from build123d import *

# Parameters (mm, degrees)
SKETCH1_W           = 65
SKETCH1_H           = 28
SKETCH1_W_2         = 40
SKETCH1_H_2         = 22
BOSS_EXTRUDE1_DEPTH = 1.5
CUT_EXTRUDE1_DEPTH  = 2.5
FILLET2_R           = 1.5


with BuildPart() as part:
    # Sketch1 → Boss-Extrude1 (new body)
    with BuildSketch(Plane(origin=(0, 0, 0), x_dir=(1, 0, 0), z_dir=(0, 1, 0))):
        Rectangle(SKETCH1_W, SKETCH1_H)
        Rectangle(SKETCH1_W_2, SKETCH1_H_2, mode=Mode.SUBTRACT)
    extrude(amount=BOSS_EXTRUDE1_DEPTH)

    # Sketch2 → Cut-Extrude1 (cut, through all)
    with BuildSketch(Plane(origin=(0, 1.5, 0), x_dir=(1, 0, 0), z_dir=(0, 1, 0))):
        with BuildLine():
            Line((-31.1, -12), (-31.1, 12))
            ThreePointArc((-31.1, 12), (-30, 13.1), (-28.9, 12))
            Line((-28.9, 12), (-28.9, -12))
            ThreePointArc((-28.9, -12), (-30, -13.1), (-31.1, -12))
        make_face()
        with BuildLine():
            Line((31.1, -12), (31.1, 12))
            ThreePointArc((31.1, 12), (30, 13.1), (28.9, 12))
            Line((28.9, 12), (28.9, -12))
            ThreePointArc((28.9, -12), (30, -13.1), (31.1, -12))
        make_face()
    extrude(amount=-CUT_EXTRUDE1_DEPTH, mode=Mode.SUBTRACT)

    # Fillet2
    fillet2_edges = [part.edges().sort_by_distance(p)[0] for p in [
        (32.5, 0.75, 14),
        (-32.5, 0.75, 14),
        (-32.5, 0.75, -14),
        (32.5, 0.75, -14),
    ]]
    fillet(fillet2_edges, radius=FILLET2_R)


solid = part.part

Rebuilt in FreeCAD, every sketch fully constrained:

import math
import FreeCAD as App
import Part
import Sketcher

V = App.Vector


def edges_at(feature, points):
    """Names of the edges that pass closest to the given points."""
    edges = feature.Shape.Edges
    near = lambda p: min(range(len(edges)), key=lambda i: edges[i].distToShape(Part.Vertex(*p))[0])
    return sorted({f"Edge{near(p) + 1}" for p in points})


def add_polygon(sketch, points):
    """Adds a closed chain of lines whose ends are joined by coincident constraints."""
    first, n = sketch.GeometryCount, len(points)
    for a, b in zip(points, points[1:] + points[:1]):
        sketch.addGeometry(Part.LineSegment(App.Vector(*a, 0), App.Vector(*b, 0)), False)
    for i in range(n):
        sketch.addConstraint(Sketcher.Constraint("Coincident", first + i, 2, first + (i + 1) % n, 1))

doc = App.newDocument("Part")
body = doc.addObject("PartDesign::Body", "Body")

sketch1 = body.newObject("Sketcher::SketchObject", "Sketch")
sketch1.AttachmentSupport = (doc.getObject("XZ_Plane"), [""])
sketch1.MapMode = "FlatFace"
add_polygon(sketch1, [(-32.5, -14), (-32.5, 14), (32.5, 14), (32.5, -14)])
add_polygon(sketch1, [(20, 11), (-20, 11), (-20, -11), (20, -11)])
sketch1.addConstraint([
    Sketcher.Constraint("Vertical", 0),
    Sketcher.Constraint("Horizontal", 1),
    Sketcher.Constraint("Vertical", 2),
    Sketcher.Constraint("Horizontal", 3),
    Sketcher.Constraint("Horizontal", 4),
    Sketcher.Constraint("Vertical", 5),
    Sketcher.Constraint("Horizontal", 6),
    Sketcher.Constraint("Vertical", 7),
    Sketcher.Constraint("Symmetric", 0, 2, 2, 2, -1, 1),
    Sketcher.Constraint("Symmetric", 4, 2, 6, 2, -1, 1),
    Sketcher.Constraint("DistanceX", 1, 1, 1, 2, 65.0),
    Sketcher.Constraint("DistanceX", 4, 2, 4, 1, 40.0),
    Sketcher.Constraint("DistanceY", 0, 1, 0, 2, 28.0),
    Sketcher.Constraint("DistanceY", 5, 2, 5, 1, 22.0),
])
pad1 = body.newObject("PartDesign::Pad", "Pad")
pad1.Profile = sketch1
pad1.Length = 1.5
pad1.Reversed = True

sketch2 = body.newObject("Sketcher::SketchObject", "Sketch001")
sketch2.AttachmentSupport = (doc.getObject("XZ_Plane"), [""])
sketch2.MapMode = "FlatFace"
sketch2.AttachmentOffset = App.Placement(V(0, 0, -1.5), App.Rotation())
sketch2.addGeometry([
    Part.LineSegment(V(-31.1, -12, 0), V(-31.1, 12, 0)),
    Part.ArcOfCircle(Part.Circle(V(-30, 12, 0), V(0, 0, 1), 1.1), math.radians(0), math.radians(180)),
    Part.LineSegment(V(-28.9, 12, 0), V(-28.9, -12, 0)),
    Part.ArcOfCircle(Part.Circle(V(-30, -12, 0), V(0, 0, 1), 1.1), math.radians(180), math.radians(360)),
    Part.LineSegment(V(31.1, 12, 0), V(31.1, -12, 0)),
    Part.ArcOfCircle(Part.Circle(V(30, -12, 0), V(0, 0, 1), 1.1), math.radians(180), math.radians(360)),
    Part.LineSegment(V(28.9, -12, 0), V(28.9, 12, 0)),
    Part.ArcOfCircle(Part.Circle(V(30, 12, 0), V(0, 0, 1), 1.1), math.radians(0), math.radians(180)),
], False)
sketch2.addConstraint([
    Sketcher.Constraint("Tangent", 0, 2, 1, 2),
    Sketcher.Constraint("Tangent", 1, 1, 2, 1),
    Sketcher.Constraint("Tangent", 2, 2, 3, 2),
    Sketcher.Constraint("Tangent", 3, 1, 0, 1),
    Sketcher.Constraint("Tangent", 4, 2, 5, 2),
    Sketcher.Constraint("Tangent", 5, 1, 6, 1),
    Sketcher.Constraint("Tangent", 6, 2, 7, 2),
    Sketcher.Constraint("Tangent", 7, 1, 4, 1),
    Sketcher.Constraint("Vertical", 0),
    Sketcher.Constraint("Vertical", 2),
    Sketcher.Constraint("Vertical", 4),
    Sketcher.Constraint("Vertical", 6),
    Sketcher.Constraint("Equal", 3, 5),
    Sketcher.Constraint("Symmetric", 1, 3, 5, 3, -1, 1),
    Sketcher.Constraint("Horizontal", 3, 3, 5, 3),
    Sketcher.Constraint("Horizontal", 1, 3, 7, 3),
    Sketcher.Constraint("Radius", 1, 1.1),
    Sketcher.Constraint("DistanceY", 0, 1, 0, 2, 24.0),
    Sketcher.Constraint("DistanceX", 1, 3, -1, 1, 30.0),
])
pocket1 = body.newObject("PartDesign::Pocket", "Pocket")
pocket1.Profile = sketch2
pocket1.Type = "ThroughAll"
pocket1.Reversed = True
doc.recompute()

fillet = body.newObject("PartDesign::Fillet", "Fillet")
fillet.Base = (pocket1, edges_at(pocket1, [
    (32.5, 0.75, 14),
    (-32.5, 0.75, 14),
    (-32.5, 0.75, -14),
    (32.5, 0.75, -14),
]))
fillet.Radius = 1.5

doc.recompute()
